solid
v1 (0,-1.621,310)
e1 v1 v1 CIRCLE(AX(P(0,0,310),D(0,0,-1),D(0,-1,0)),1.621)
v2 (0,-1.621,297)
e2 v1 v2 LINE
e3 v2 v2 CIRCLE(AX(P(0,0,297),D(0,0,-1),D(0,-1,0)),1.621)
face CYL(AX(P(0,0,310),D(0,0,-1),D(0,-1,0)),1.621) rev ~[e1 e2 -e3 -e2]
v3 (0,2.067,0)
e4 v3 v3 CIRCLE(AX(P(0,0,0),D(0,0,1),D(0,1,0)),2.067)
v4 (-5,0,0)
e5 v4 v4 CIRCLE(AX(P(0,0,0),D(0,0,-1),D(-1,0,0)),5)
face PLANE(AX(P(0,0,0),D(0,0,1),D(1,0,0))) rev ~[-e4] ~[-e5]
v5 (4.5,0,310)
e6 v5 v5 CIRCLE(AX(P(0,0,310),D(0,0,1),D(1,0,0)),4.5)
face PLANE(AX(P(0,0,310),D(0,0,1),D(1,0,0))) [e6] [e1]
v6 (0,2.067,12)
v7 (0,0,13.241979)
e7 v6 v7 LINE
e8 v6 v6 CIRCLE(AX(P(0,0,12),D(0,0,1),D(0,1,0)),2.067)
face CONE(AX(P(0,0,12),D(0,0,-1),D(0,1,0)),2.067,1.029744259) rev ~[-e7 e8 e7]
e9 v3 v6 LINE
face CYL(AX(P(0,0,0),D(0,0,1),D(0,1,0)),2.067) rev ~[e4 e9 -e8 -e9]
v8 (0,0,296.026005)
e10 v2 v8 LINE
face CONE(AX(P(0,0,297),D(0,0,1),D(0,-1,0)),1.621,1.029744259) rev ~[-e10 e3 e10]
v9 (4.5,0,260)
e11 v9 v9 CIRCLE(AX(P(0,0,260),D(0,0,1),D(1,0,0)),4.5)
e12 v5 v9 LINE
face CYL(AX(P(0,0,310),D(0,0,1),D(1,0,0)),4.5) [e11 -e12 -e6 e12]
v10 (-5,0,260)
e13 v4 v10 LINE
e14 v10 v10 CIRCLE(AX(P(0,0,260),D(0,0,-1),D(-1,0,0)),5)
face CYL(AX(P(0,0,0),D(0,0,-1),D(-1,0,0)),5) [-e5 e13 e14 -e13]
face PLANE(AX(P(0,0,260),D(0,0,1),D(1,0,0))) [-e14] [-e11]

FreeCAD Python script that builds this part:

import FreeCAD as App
import Part
import Sketcher
from FreeCAD import Vector
Q = App.Units.Quantity

doc = App.newDocument("Part")
params = doc.addObject("Spreadsheet::Sheet", "Params")
for row, (alias, value) in enumerate([
    ("sketch1_diameter", "12 mm"),
    ("pad1_length", "310 mm"),
    ("sketch2_diameter", "10 mm"),
    ("sketch2_diameter2", "12 mm"),
    ("sketch3_diameter", "9 mm"),
    ("sketch3_diameter2", "10 mm"),
    ("pocket2_length", "50 mm"),
    ("hole_diameter", "4.134 mm"),
    ("hole_depth", "12 mm"),
    ("hole2_diameter", "3.242 mm"),
    ("hole2_depth", "13 mm"),
], start=1):
    params.set(f"A{row}", alias)
    params.set(f"B{row}", "=" + value)
    params.setAlias(f"B{row}", alias)

body = doc.addObject("PartDesign::Body", "Body")

# Sketch on XY plane
sketch1 = doc.addObject("Sketcher::SketchObject", "Sketch")
body.addObject(sketch1)
sketch1.AttachmentSupport = (doc.XY_Plane, [""])
sketch1.MapMode = "FlatFace"
sketch1.addGeometry(Part.Circle(Vector(0, 0, 0), Vector(0, 0, 1), 6), False)
sketch1.addConstraint([
    Sketcher.Constraint("Coincident", 0, 3, -1, 1),
    Sketcher.Constraint("Diameter", 0, Q("12 mm")),
])
sketch1.setExpression("Constraints[1]", "Params.sketch1_diameter")
pad1 = doc.addObject("PartDesign::Pad", "Pad")
body.addObject(pad1)
pad1.Profile = sketch1
pad1.setExpression("Length", "Params.pad1_length")

# Sketch on XY plane
sketch2 = doc.addObject("Sketcher::SketchObject", "Sketch001")
body.addObject(sketch2)
sketch2.AttachmentSupport = (doc.XY_Plane, [""])
sketch2.MapMode = "FlatFace"
sketch2.addGeometry([
    Part.Circle(Vector(0, 0, 0), Vector(0, 0, 1), 6),
    Part.Circle(Vector(0, 0, 0), Vector(0, 0, 1), 5),
], False)
sketch2.addConstraint([
    Sketcher.Constraint("Coincident", 0, 3, -1, 1),
    Sketcher.Constraint("Coincident", 1, 3, -1, 1),
    Sketcher.Constraint("Diameter", 1, Q("10 mm")),
    Sketcher.Constraint("Diameter", 0, Q("12 mm")),
])
sketch2.setExpression("Constraints[2]", "Params.sketch2_diameter")
sketch2.setExpression("Constraints[3]", "Params.sketch2_diameter2")
pocket1 = doc.addObject("PartDesign::Pocket", "Pocket")
body.addObject(pocket1)
pocket1.Profile = sketch2
pocket1.Type = "ThroughAll"
pocket1.Reversed = True

# Sketch on XY plane
sketch3 = doc.addObject("Sketcher::SketchObject", "Sketch002")
body.addObject(sketch3)
sketch3.AttachmentSupport = (doc.XY_Plane, [""])
sketch3.MapMode = "FlatFace"
sketch3.AttachmentOffset = App.Placement(Vector(0, 0, 310), App.Rotation())
sketch3.addGeometry([
    Part.Circle(Vector(0, 0, 0), Vector(0, 0, 1), 5),
    Part.Circle(Vector(0, 0, 0), Vector(0, 0, 1), 4.5),
], False)
sketch3.addConstraint([
    Sketcher.Constraint("Coincident", 0, 3, -1, 1),
    Sketcher.Constraint("Coincident", 1, 3, -1, 1),
    Sketcher.Constraint("Diameter", 1, Q("9 mm")),
    Sketcher.Constraint("Diameter", 0, Q("10 mm")),
])
sketch3.setExpression("Constraints[2]", "Params.sketch3_diameter")
sketch3.setExpression("Constraints[3]", "Params.sketch3_diameter2")
pocket2 = doc.addObject("PartDesign::Pocket", "Pocket001")
body.addObject(pocket2)
pocket2.Profile = sketch3
pocket2.setExpression("Length", "Params.pocket2_length")

# Sketch on XY plane
sketch4 = doc.addObject("Sketcher::SketchObject", "Sketch003")
body.addObject(sketch4)
sketch4.AttachmentSupport = (doc.XY_Plane, [""])
sketch4.MapMode = "FlatFace"
sketch4.addGeometry(Part.Circle(Vector(0, 0, 0), Vector(0, 0, 1), 2.067), False)
sketch4.addConstraint([
    Sketcher.Constraint("Coincident", 0, 3, -1, 1),
    Sketcher.Constraint("Diameter", 0, Q("4.134 mm")),
])
doc.recompute()
hole = doc.addObject("PartDesign::Hole", "Hole")
body.addObject(hole)
hole.Profile = sketch4
hole.ThreadType = "None"
hole.setExpression("Diameter", "Params.hole_diameter")
hole.DepthType = "Dimension"
hole.setExpression("Depth", "Params.hole_depth")
hole.DrillPoint = "Angled"
hole.DrillPointAngle = 118
hole.Reversed = True

# Sketch on XY plane
sketch5 = doc.addObject("Sketcher::SketchObject", "Sketch004")
body.addObject(sketch5)
sketch5.AttachmentSupport = (doc.XY_Plane, [""])
sketch5.MapMode = "FlatFace"
sketch5.AttachmentOffset = App.Placement(Vector(0, 0, 310), App.Rotation())
sketch5.addGeometry(Part.Circle(Vector(0, 0, 0), Vector(0, 0, 1), 1.621), False)
sketch5.addConstraint([
    Sketcher.Constraint("Coincident", 0, 3, -1, 1),
    Sketcher.Constraint("Diameter", 0, Q("3.242 mm")),
])
doc.recompute()
hole2 = doc.addObject("PartDesign::Hole", "Hole001")
body.addObject(hole2)
hole2.Profile = sketch5
hole2.ThreadType = "None"
hole2.setExpression("Diameter", "Params.hole2_diameter")
hole2.DepthType = "Dimension"
hole2.setExpression("Depth", "Params.hole2_depth")
hole2.DrillPoint = "Angled"
hole2.DrillPointAngle = 118

doc.recompute()
